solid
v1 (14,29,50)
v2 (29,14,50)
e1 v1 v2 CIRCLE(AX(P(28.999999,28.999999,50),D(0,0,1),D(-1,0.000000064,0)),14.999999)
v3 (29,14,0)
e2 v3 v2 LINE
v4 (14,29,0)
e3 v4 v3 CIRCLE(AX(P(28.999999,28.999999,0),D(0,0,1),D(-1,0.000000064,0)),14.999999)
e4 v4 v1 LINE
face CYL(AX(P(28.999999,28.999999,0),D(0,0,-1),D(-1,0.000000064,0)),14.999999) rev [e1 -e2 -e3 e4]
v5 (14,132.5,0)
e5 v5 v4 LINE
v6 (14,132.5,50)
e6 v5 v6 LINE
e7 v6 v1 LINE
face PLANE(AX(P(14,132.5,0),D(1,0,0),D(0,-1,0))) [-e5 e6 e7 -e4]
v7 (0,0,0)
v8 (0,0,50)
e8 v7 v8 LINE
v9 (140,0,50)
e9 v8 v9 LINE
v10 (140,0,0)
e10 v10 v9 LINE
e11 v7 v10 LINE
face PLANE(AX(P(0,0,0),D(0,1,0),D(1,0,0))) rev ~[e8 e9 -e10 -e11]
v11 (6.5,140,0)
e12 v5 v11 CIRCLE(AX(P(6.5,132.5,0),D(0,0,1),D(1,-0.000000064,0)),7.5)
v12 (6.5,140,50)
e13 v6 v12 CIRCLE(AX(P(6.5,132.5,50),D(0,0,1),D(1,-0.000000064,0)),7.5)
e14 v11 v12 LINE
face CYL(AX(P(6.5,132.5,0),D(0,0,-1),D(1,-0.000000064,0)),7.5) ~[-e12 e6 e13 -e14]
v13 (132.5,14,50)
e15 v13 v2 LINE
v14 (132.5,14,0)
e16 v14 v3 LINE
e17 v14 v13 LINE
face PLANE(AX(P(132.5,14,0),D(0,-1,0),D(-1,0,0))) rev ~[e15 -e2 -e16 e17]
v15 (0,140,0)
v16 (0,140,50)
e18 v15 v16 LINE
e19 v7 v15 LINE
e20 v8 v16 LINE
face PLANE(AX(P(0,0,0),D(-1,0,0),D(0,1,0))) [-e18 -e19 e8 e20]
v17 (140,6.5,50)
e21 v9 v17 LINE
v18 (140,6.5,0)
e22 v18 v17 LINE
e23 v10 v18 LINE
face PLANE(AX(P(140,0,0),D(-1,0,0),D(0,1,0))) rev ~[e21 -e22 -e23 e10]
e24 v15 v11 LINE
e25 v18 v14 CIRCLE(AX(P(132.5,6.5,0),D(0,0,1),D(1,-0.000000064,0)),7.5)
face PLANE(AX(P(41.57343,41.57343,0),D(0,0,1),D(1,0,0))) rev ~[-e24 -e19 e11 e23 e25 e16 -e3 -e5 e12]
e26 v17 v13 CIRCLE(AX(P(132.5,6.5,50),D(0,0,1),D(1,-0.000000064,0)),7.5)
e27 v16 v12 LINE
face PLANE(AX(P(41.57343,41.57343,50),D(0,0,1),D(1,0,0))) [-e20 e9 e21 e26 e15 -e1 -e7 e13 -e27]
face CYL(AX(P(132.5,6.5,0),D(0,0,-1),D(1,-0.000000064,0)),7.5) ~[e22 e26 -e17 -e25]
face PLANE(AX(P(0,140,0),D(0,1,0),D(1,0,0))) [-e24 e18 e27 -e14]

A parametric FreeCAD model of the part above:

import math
import FreeCAD as App
import Part
import Sketcher
from FreeCAD import Vector
Q = App.Units.Quantity

doc = App.newDocument("Part")
params = doc.addObject("Spreadsheet::Sheet", "Params")
for row, (alias, value) in enumerate([
    ("sketch1_radius", "14.999999 mm"),
    ("sketch1_radius2", "7.5 mm"),
    ("sketch1_width", "140 mm"),
    ("sketch1_width2", "103.5 mm"),
    ("pad1_length", "50 mm"),
], start=1):
    params.set(f"A{row}", alias)
    params.set(f"B{row}", "=" + value)
    params.setAlias(f"B{row}", alias)

body = doc.addObject("PartDesign::Body", "Body")

sketch1 = doc.addObject("Sketcher::SketchObject", "Sketch")
body.addObject(sketch1)
sketch1.AttachmentSupport = (doc.XY_Plane, [""])
sketch1.MapMode = "FlatFace"
sketch1.addGeometry([
    Part.LineSegment(Vector(0, 0, 0), Vector(140, 0, 0)),
    Part.LineSegment(Vector(140, 0, 0), Vector(140, 6, 0)),
    Part.ArcOfCircle(Part.Circle(Vector(133, 7, 0), Vector(0, 0, 1), 7), math.radians(0), math.radians(90)),
    Part.LineSegment(Vector(132, 14, 0), Vector(29, 14, 0)),
    Part.ArcOfCircle(Part.Circle(Vector(29, 29, 0), Vector(0, 0, 1), 15), math.radians(180), math.radians(270)),
    Part.LineSegment(Vector(14, 29, 0), Vector(14, 132, 0)),
    Part.ArcOfCircle(Part.Circle(Vector(7, 133, 0), Vector(0, 0, 1), 7), math.radians(0), math.radians(90)),
    Part.LineSegment(Vector(6, 140, 0), Vector(0, 140, 0)),
    Part.LineSegment(Vector(0, 140, 0), Vector(0, 0, 0)),
], False)
sketch1.addConstraint([
    Sketcher.Constraint("Coincident", 0, 2, 1, 1),
    Sketcher.Constraint("Tangent", 1, 2, 2, 1),
    Sketcher.Constraint("Tangent", 2, 2, 3, 1),
    Sketcher.Constraint("Tangent", 3, 2, 4, 2),
    Sketcher.Constraint("Tangent", 4, 1, 5, 1),
    Sketcher.Constraint("Tangent", 5, 2, 6, 1),
    Sketcher.Constraint("Tangent", 6, 2, 7, 1),
    Sketcher.Constraint("Coincident", 7, 2, 8, 1),
    Sketcher.Constraint("Coincident", 8, 2, 0, 1),
    Sketcher.Constraint("Horizontal", 0),
    Sketcher.Constraint("Vertical", 1),
    Sketcher.Constraint("Horizontal", 3),
    Sketcher.Constraint("Vertical", 5),
    Sketcher.Constraint("Horizontal", 7),
    Sketcher.Constraint("Vertical", 8),
    Sketcher.Constraint("Coincident", 8, 2, -1, 1),
    Sketcher.Constraint("Equal", 2, 6),
    Sketcher.Constraint("Equal", 7, 1),
    Sketcher.Constraint("Equal", 3, 5),
    Sketcher.Constraint("Radius", 4, Q("14.999999 mm")),
    Sketcher.Constraint("Radius", 2, Q("7.5 mm")),
    Sketcher.Constraint("DistanceX", 0, 1, 0, 2, Q("140 mm")),
    Sketcher.Constraint("DistanceX", 3, 2, 3, 1, Q("103.5 mm")),
])
sketch1.setExpression("Constraints[19]", "Params.sketch1_radius")
sketch1.setExpression("Constraints[20]", "Params.sketch1_radius2")
sketch1.setExpression("Constraints[21]", "Params.sketch1_width")
sketch1.setExpression("Constraints[22]", "Params.sketch1_width2")
pad1 = doc.addObject("PartDesign::Pad", "Pad")
body.addObject(pad1)
pad1.Profile = sketch1
pad1.setExpression("Length", "Params.pad1_length")

doc.recompute()
